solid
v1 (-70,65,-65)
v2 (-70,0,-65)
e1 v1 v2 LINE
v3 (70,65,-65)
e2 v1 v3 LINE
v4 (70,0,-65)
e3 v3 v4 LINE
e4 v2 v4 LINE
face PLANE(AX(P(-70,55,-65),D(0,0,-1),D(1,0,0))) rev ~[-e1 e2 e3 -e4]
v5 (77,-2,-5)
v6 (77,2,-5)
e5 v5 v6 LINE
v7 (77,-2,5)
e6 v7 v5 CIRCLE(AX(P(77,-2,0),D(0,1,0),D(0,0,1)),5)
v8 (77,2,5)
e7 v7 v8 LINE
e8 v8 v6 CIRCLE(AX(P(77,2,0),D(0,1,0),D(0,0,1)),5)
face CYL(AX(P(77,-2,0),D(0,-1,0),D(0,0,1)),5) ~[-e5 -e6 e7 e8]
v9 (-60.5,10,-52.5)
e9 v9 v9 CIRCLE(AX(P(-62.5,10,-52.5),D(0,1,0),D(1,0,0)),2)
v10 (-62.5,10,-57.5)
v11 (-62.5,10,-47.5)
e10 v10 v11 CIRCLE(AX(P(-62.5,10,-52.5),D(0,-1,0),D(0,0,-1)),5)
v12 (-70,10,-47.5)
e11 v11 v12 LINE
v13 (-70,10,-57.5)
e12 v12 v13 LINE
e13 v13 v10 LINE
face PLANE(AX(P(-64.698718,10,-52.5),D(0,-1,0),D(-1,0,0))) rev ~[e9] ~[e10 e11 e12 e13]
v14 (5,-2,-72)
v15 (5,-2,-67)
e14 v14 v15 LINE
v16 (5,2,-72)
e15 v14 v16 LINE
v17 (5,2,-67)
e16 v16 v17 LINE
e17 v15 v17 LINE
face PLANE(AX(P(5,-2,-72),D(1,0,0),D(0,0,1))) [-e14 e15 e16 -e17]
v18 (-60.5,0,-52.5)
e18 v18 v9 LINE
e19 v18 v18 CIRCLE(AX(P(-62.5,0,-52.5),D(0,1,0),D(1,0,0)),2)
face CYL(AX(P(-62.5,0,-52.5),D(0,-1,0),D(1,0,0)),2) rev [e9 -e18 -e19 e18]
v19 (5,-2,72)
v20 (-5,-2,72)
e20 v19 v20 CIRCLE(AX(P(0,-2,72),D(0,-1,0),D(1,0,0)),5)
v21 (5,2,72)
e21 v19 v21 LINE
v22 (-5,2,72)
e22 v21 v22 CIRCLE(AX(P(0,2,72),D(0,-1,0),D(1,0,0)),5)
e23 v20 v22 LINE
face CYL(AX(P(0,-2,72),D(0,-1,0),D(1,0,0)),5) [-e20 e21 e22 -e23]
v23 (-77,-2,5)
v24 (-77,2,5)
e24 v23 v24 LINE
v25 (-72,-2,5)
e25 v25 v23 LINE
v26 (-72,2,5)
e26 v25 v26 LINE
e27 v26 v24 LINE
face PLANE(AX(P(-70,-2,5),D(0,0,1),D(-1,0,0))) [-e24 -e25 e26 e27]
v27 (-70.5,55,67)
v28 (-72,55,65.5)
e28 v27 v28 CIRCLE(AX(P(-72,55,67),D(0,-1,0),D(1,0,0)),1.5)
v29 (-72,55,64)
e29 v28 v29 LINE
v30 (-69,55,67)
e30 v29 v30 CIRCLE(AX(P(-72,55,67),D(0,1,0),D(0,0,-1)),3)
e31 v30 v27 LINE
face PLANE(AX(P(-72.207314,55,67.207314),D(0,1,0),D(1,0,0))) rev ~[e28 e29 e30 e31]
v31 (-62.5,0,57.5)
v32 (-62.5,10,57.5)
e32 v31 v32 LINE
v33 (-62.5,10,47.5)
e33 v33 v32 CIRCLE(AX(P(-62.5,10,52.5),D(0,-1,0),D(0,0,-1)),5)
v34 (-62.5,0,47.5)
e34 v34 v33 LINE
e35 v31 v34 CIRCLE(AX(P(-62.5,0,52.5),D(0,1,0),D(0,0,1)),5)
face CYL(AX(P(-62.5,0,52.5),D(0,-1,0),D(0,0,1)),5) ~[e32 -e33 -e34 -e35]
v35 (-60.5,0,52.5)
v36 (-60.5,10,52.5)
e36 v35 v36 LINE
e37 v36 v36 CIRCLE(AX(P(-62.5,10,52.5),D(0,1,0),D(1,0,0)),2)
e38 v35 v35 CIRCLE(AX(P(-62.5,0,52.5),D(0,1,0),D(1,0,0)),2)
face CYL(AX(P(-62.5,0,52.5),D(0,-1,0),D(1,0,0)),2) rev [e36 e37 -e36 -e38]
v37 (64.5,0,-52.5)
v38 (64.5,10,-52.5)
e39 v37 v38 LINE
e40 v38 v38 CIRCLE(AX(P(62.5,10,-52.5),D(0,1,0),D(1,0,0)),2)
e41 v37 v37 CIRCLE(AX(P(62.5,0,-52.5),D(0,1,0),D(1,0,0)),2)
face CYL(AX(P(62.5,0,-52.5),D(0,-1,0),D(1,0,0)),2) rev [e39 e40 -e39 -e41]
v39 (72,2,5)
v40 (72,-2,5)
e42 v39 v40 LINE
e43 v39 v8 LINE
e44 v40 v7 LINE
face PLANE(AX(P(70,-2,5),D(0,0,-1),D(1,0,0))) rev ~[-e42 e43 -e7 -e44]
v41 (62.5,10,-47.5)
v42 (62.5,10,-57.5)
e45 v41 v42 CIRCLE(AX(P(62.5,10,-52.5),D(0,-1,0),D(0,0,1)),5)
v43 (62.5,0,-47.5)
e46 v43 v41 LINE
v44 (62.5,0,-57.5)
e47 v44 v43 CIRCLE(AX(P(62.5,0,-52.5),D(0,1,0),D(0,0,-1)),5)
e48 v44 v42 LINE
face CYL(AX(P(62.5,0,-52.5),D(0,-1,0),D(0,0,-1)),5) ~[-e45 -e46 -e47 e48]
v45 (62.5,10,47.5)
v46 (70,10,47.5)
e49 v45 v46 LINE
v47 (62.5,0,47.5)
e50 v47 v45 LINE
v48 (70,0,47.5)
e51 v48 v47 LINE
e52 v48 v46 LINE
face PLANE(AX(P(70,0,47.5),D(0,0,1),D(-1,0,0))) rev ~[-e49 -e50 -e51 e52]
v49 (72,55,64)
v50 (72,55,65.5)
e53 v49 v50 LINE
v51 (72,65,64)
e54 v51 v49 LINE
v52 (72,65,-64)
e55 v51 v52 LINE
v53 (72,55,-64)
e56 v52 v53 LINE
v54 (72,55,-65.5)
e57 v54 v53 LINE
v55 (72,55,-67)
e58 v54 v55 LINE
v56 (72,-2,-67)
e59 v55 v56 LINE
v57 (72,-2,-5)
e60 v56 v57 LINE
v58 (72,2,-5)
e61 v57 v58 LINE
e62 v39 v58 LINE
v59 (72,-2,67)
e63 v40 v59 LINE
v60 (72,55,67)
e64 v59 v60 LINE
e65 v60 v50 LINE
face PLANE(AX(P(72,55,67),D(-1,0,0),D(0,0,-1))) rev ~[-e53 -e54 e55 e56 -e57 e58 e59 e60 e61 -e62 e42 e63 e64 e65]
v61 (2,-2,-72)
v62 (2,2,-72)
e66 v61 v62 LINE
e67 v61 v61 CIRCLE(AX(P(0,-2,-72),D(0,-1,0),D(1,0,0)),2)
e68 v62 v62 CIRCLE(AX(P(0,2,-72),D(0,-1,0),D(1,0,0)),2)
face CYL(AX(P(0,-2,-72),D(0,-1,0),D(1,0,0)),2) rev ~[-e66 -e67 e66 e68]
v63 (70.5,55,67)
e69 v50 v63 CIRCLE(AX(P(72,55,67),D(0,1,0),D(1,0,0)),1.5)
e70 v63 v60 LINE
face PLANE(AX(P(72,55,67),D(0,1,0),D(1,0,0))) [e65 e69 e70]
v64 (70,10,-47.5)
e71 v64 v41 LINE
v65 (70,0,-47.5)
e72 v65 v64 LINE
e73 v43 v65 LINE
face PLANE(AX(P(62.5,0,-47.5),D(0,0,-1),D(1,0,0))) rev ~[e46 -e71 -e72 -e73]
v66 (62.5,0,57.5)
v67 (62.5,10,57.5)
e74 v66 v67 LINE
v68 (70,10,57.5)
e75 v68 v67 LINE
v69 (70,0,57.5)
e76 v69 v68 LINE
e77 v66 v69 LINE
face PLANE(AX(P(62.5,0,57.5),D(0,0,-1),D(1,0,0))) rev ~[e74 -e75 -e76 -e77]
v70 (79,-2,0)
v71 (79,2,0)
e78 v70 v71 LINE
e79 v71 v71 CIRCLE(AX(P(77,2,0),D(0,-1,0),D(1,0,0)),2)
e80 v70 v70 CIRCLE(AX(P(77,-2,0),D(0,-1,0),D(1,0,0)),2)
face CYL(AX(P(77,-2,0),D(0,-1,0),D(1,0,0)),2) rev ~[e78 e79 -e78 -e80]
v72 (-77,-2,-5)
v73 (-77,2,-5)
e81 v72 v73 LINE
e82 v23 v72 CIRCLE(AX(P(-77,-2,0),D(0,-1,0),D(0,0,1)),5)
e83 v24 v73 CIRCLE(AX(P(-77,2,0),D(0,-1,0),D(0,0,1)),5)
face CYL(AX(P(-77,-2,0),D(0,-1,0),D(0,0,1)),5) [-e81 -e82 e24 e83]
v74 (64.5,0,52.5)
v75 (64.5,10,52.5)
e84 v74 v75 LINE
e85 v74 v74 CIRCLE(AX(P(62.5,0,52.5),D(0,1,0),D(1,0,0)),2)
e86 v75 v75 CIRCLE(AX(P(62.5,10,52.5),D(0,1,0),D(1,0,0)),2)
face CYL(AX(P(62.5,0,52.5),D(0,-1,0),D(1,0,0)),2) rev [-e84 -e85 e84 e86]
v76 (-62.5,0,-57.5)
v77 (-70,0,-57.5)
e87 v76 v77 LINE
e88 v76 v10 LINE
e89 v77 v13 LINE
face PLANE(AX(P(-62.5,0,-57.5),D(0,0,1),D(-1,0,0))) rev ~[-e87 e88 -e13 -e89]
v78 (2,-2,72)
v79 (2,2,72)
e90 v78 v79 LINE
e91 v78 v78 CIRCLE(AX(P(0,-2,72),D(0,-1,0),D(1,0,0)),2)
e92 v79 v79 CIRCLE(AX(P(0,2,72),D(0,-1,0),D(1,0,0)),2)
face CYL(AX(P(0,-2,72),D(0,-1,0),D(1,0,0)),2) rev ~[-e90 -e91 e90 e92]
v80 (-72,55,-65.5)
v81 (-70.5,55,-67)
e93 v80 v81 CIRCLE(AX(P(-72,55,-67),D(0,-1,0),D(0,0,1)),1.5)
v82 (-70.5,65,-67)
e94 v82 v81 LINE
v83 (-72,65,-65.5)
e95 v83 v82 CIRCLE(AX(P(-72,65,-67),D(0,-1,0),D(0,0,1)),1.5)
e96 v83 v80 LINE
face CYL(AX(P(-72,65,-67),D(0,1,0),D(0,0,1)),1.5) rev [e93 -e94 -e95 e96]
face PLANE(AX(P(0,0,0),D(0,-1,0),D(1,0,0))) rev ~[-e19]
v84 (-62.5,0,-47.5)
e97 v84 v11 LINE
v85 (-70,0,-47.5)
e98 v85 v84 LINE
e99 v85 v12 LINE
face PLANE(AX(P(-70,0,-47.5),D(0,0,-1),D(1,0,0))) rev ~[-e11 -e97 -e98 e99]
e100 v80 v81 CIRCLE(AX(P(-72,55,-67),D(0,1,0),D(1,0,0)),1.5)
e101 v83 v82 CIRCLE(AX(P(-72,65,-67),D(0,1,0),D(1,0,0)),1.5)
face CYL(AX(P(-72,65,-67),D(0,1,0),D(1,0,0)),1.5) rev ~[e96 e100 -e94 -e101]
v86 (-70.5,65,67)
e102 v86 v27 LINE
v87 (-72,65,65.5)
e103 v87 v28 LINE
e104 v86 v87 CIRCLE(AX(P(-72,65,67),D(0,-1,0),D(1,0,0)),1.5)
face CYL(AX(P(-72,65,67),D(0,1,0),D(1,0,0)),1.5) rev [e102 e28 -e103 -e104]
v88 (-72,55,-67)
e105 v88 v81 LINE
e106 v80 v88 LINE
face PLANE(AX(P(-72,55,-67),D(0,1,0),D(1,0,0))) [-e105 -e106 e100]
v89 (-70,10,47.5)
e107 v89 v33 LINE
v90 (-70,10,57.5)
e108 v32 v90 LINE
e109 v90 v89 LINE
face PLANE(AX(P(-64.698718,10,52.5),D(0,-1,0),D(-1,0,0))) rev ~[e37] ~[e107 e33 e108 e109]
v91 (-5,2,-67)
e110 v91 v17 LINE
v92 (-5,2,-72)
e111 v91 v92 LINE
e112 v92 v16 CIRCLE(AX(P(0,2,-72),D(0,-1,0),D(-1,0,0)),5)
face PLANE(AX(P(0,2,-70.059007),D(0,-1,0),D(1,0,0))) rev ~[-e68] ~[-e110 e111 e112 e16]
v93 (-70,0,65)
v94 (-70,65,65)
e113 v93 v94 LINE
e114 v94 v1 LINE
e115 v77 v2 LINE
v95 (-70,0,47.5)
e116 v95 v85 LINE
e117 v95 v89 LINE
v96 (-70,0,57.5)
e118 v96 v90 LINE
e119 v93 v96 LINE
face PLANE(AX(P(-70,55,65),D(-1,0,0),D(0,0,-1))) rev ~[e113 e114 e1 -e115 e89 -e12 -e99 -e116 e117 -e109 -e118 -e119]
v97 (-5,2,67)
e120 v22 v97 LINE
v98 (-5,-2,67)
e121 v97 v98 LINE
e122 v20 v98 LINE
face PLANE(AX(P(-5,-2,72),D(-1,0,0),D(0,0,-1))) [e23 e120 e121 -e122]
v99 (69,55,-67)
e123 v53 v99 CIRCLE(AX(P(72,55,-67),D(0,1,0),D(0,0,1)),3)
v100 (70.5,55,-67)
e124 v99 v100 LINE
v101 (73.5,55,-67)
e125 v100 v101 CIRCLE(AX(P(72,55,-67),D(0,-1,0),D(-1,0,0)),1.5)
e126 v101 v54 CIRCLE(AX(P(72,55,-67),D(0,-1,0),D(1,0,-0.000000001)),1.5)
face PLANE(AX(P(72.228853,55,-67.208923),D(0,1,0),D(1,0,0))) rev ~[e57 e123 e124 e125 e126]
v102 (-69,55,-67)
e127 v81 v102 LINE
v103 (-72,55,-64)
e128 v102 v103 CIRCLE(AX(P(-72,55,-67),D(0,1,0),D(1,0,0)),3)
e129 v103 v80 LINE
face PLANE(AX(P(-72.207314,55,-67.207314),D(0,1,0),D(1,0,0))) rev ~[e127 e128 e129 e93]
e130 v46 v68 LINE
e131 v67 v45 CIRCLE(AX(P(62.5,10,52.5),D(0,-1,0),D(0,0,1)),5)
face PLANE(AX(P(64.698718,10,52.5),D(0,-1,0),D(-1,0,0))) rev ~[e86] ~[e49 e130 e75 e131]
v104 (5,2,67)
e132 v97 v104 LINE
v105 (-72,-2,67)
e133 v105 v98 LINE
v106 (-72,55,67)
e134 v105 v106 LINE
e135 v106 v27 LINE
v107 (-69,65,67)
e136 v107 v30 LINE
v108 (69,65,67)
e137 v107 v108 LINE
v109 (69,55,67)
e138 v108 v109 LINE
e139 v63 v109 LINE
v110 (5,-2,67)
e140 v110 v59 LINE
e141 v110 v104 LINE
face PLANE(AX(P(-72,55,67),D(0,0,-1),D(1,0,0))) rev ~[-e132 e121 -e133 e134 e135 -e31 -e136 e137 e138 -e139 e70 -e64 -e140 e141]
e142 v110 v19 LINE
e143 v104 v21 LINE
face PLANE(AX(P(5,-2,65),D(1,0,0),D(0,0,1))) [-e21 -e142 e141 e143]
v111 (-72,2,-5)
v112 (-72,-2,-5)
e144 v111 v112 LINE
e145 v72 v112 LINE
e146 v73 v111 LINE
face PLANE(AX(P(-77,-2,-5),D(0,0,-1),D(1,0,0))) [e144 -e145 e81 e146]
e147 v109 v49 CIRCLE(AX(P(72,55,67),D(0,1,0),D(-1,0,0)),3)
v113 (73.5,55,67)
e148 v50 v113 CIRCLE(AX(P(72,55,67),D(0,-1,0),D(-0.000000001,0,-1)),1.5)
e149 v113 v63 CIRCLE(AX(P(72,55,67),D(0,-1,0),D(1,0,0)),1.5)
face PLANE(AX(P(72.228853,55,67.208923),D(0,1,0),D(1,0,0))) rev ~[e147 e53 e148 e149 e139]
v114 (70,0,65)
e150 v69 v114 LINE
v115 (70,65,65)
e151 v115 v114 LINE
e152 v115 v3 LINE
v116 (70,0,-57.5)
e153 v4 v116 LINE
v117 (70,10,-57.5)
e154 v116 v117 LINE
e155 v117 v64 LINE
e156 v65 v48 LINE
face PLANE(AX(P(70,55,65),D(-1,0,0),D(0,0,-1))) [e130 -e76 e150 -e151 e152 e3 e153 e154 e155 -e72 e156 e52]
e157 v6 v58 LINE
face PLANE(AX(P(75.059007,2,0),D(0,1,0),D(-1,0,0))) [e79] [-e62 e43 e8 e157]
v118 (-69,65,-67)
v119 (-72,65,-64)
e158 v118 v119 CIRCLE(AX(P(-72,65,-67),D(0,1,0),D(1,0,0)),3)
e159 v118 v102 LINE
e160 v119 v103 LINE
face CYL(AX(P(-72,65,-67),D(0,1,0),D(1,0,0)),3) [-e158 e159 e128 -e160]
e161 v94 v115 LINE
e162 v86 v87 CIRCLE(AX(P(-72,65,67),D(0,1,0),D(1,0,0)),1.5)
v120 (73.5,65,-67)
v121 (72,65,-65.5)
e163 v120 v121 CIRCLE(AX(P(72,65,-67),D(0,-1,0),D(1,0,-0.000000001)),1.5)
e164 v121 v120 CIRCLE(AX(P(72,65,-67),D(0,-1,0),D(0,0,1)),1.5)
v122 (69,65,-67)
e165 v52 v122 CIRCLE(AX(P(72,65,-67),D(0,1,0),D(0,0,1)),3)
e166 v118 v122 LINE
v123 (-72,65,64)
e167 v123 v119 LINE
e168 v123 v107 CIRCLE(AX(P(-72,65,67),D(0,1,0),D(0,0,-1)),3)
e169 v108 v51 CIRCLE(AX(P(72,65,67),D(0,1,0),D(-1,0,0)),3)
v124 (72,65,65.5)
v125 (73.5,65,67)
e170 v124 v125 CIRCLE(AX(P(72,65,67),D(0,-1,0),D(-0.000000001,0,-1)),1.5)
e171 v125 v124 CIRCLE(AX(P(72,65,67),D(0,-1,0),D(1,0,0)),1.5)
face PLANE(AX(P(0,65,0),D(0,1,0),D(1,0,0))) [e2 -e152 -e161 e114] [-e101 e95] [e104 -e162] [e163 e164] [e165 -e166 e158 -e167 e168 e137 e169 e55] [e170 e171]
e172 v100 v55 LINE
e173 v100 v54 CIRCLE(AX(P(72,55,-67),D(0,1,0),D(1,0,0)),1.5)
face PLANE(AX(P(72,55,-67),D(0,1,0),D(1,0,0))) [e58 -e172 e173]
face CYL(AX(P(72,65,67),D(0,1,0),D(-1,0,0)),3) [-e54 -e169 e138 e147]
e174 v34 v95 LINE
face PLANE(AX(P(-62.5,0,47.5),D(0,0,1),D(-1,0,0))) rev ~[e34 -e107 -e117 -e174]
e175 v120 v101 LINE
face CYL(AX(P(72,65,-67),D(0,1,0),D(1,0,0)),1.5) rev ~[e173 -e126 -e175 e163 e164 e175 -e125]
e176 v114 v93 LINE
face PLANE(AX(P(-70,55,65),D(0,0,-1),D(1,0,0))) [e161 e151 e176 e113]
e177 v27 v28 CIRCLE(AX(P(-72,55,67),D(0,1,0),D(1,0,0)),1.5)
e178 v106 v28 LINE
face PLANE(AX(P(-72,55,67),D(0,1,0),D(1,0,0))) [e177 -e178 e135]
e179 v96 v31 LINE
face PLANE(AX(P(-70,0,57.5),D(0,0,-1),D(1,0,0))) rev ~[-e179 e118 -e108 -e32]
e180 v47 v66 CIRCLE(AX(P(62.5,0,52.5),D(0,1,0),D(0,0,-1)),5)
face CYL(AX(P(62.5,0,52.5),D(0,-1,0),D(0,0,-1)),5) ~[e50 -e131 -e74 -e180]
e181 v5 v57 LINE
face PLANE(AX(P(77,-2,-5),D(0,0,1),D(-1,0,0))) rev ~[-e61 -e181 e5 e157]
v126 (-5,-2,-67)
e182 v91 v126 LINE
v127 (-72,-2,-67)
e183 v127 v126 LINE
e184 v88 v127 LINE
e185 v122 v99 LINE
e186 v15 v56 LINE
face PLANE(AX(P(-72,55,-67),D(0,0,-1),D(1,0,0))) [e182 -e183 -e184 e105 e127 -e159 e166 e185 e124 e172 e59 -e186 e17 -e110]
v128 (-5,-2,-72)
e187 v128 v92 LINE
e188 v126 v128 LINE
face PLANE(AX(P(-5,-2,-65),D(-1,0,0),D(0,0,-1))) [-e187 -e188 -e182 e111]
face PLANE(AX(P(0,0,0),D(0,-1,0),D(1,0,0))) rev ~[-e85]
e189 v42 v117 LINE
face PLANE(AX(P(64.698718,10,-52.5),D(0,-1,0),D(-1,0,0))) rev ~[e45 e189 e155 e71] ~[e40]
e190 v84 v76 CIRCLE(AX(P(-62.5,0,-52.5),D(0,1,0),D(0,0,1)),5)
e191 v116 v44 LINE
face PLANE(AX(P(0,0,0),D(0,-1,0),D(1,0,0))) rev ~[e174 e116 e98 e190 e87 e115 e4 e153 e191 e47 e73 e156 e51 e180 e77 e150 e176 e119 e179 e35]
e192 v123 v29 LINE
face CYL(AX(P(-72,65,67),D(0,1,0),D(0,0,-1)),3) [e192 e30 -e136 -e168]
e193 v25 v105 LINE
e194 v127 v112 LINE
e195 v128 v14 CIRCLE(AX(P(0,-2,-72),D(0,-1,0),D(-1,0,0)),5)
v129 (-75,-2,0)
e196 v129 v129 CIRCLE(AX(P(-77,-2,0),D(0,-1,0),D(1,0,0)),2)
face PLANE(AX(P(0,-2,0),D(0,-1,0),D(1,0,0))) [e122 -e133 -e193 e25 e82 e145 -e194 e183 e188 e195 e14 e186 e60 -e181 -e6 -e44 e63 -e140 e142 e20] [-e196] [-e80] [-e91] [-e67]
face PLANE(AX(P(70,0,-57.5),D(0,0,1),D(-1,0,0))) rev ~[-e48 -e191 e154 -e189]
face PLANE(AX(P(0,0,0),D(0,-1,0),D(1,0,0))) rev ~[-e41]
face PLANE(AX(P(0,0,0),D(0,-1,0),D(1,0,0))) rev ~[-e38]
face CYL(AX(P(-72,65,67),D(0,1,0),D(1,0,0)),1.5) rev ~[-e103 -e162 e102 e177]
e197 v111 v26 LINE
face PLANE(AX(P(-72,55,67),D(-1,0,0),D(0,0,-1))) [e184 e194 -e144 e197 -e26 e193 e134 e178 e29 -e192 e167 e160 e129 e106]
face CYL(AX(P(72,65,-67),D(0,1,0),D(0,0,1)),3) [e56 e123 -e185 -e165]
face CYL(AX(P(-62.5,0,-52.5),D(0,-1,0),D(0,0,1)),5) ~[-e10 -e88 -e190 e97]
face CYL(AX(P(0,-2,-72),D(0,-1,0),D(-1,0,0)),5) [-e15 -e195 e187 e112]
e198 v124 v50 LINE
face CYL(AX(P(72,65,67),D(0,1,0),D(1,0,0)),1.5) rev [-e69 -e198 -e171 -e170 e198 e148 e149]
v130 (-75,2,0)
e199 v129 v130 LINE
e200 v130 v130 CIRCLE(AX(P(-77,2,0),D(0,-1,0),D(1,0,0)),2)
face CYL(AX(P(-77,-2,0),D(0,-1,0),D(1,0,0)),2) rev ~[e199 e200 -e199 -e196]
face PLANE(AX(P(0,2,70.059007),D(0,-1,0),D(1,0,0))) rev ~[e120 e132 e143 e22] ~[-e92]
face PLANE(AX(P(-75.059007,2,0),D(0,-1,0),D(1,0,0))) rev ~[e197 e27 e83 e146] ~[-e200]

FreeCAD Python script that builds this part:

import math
import FreeCAD as App
import Part
import Sketcher
Q = App.Units.Quantity

doc = App.newDocument("Part")
params = doc.addObject("Spreadsheet::Sheet", "Params")
for row, (alias, value) in enumerate([
    ("sketch1_diameter", "4 mm"),
    ("sketch1_radius", "5 mm"),
    ("sketch1_width", "144 mm"),
    ("sketch1_width2", "140 mm"),
    ("sketch1_height", "134 mm"),
    ("pad1_length", "55 mm"),
    ("sketch2_diameter", "4 mm"),
    ("sketch2_radius", "5 mm"),
    ("sketch2_width", "7.5 mm"),
    ("pocket1_length", "45 mm"),
    ("sketch3_width", "144 mm"),
    ("sketch3_height", "134 mm"),
    ("pad2_length", "2 mm"),
    ("sketch4_diameter", "4 mm"),
    ("sketch4_radius", "5 mm"),
    ("sketch4_width", "7 mm"),
    ("pad3_length", "4 mm"),
    ("sketch5_width", "144 mm"),
    ("sketch5_width2", "140 mm"),
    ("sketch5_height", "134 mm"),
    ("sketch5_height2", "130 mm"),
    ("pad4_length", "10 mm"),
    ("sketch6_radius", "3 mm"),
    ("sketch6_radius2", "1.5 mm"),
    ("pad5_length", "10 mm"),
    ("sketch7_diameter", "3 mm"),
    ("pocket2_length", "10 mm"),
], start=1):
    params.set(f"A{row}", alias)
    params.set(f"B{row}", "=" + value)
    params.setAlias(f"B{row}", alias)

body = doc.addObject("PartDesign::Body", "Body")

# Sketch on XZ plane
sketch1 = body.newObject("Sketcher::SketchObject", "Sketch")
sketch1.AttachmentSupport = (doc.getObject("XZ_Plane"), [""])
sketch1.MapMode = "FlatFace"
sketch1.addGeometry([
    Part.LineSegment(App.Vector(-72, -67, 0), App.Vector(-72, 67, 0)),  # 0
    Part.LineSegment(App.Vector(-72, 67, 0), App.Vector(72, 67, 0)),  # 1
    Part.LineSegment(App.Vector(72, 67, 0), App.Vector(72, -67, 0)),  # 2
    Part.LineSegment(App.Vector(72, -67, 0), App.Vector(-72, -67, 0)),  # 3
    Part.Circle(App.Vector(-62.5, 52.5, 0), App.Vector(0, 0, 1), 2),  # 4
    Part.Circle(App.Vector(62.5, 52.5, 0), App.Vector(0, 0, 1), 2),  # 5
    Part.Circle(App.Vector(-62.5, -52.5, 0), App.Vector(0, 0, 1), 2),  # 6
    Part.LineSegment(App.Vector(-70, -57.5, 0), App.Vector(-70, -65, 0)),  # 7
    Part.LineSegment(App.Vector(-70, -65, 0), App.Vector(70, -65, 0)),  # 8
    Part.LineSegment(App.Vector(70, -65, 0), App.Vector(70, -57.5, 0)),  # 9
    Part.LineSegment(App.Vector(70, -57.5, 0), App.Vector(62.5, -57.5, 0)),  # 10
    Part.ArcOfCircle(Part.Circle(App.Vector(62.5, -52.5, 0), App.Vector(0, 0, 1), 5), math.radians(90), math.radians(270)),  # 11
    Part.LineSegment(App.Vector(62.5, -47.5, 0), App.Vector(70, -47.5, 0)),  # 12
    Part.LineSegment(App.Vector(70, -47.5, 0), App.Vector(70, 47.5, 0)),  # 13
    Part.LineSegment(App.Vector(70, 47.5, 0), App.Vector(62.5, 47.5, 0)),  # 14
    Part.ArcOfCircle(Part.Circle(App.Vector(62.5, 52.5, 0), App.Vector(0, 0, 1), 5), math.radians(90), math.radians(270)),  # 15
    Part.LineSegment(App.Vector(62.5, 57.5, 0), App.Vector(70, 57.5, 0)),  # 16
    Part.LineSegment(App.Vector(70, 57.5, 0), App.Vector(70, 65, 0)),  # 17
    Part.LineSegment(App.Vector(70, 65, 0), App.Vector(-70, 65, 0)),  # 18
    Part.LineSegment(App.Vector(-70, 65, 0), App.Vector(-70, 57.5, 0)),  # 19
    Part.LineSegment(App.Vector(-70, 57.5, 0), App.Vector(-62.5, 57.5, 0)),  # 20
    Part.ArcOfCircle(Part.Circle(App.Vector(-62.5, 52.5, 0), App.Vector(0, 0, 1), 5), math.radians(-90), math.radians(90)),  # 21
    Part.LineSegment(App.Vector(-62.5, 47.5, 0), App.Vector(-70, 47.5, 0)),  # 22
    Part.LineSegment(App.Vector(-70, 47.5, 0), App.Vector(-70, -47.5, 0)),  # 23
    Part.LineSegment(App.Vector(-70, -47.5, 0), App.Vector(-62.5, -47.5, 0)),  # 24
    Part.ArcOfCircle(Part.Circle(App.Vector(-62.5, -52.5, 0), App.Vector(0, 0, 1), 5), math.radians(-90), math.radians(90)),  # 25
    Part.LineSegment(App.Vector(-62.5, -57.5, 0), App.Vector(-70, -57.5, 0)),  # 26
    Part.Circle(App.Vector(62.5, -52.5, 0), App.Vector(0, 0, 1), 2),  # 27
], False)
sketch1.addConstraint([
    Sketcher.Constraint("Coincident", 0, 2, 1, 1),
    Sketcher.Constraint("Coincident", 1, 2, 2, 1),
    Sketcher.Constraint("Coincident", 2, 2, 3, 1),
    Sketcher.Constraint("Coincident", 3, 2, 0, 1),
    Sketcher.Constraint("Coincident", 7, 2, 8, 1),
    Sketcher.Constraint("Coincident", 8, 2, 9, 1),
    Sketcher.Constraint("Coincident", 9, 2, 10, 1),
    Sketcher.Constraint("Tangent", 10, 2, 11, 2),
    Sketcher.Constraint("Tangent", 11, 1, 12, 1),
    Sketcher.Constraint("Coincident", 12, 2, 13, 1),
    Sketcher.Constraint("Coincident", 13, 2, 14, 1),
    Sketcher.Constraint("Tangent", 14, 2, 15, 2),
    Sketcher.Constraint("Tangent", 15, 1, 16, 1),
    Sketcher.Constraint("Coincident", 16, 2, 17, 1),
    Sketcher.Constraint("Coincident", 17, 2, 18, 1),
    Sketcher.Constraint("Coincident", 18, 2, 19, 1),
    Sketcher.Constraint("Coincident", 19, 2, 20, 1),
    Sketcher.Constraint("Tangent", 20, 2, 21, 2),
    Sketcher.Constraint("Tangent", 21, 1, 22, 1),
    Sketcher.Constraint("Coincident", 22, 2, 23, 1),
    Sketcher.Constraint("Coincident", 23, 2, 24, 1),
    Sketcher.Constraint("Tangent", 24, 2, 25, 2),
    Sketcher.Constraint("Tangent", 25, 1, 26, 1),
    Sketcher.Constraint("Coincident", 26, 2, 7, 1),
    Sketcher.Constraint("Vertical", 0),
    Sketcher.Constraint("Horizontal", 1),
    Sketcher.Constraint("Vertical", 2),
    Sketcher.Constraint("Horizontal", 3),
    Sketcher.Constraint("Vertical", 7),
    Sketcher.Constraint("Horizontal", 8),
    Sketcher.Constraint("Vertical", 9),
    Sketcher.Constraint("Horizontal", 10),
    Sketcher.Constraint("Horizontal", 12),
    Sketcher.Constraint("Vertical", 13),
    Sketcher.Constraint("Horizontal", 14),
    Sketcher.Constraint("Horizontal", 16),
    Sketcher.Constraint("Vertical", 17),
    Sketcher.Constraint("Horizontal", 18),
    Sketcher.Constraint("Vertical", 19),
    Sketcher.Constraint("Horizontal", 20),
    Sketcher.Constraint("Horizontal", 22),
    Sketcher.Constraint("Vertical", 23),
    Sketcher.Constraint("Horizontal", 24),
    Sketcher.Constraint("Horizontal", 26),
    Sketcher.Constraint("Coincident", 15, 3, 5, 3),
    Sketcher.Constraint("Coincident", 21, 3, 4, 3),
    Sketcher.Constraint("Coincident", 25, 3, 6, 3),
    Sketcher.Constraint("Coincident", 27, 3, 11, 3),
    Sketcher.Constraint("Equal", 4, 5),
    Sketcher.Constraint("Equal", 5, 6),
    Sketcher.Constraint("Equal", 11, 15),
    Sketcher.Constraint("Equal", 15, 21),
    Sketcher.Constraint("Equal", 21, 25),
    Sketcher.Constraint("Equal", 6, 27),
    Sketcher.Constraint("Symmetric", 5, 3, 6, 3, -1, 1),
    Sketcher.Constraint("Symmetric", 4, 3, 11, 3, -1, 1),
    Sketcher.Constraint("Symmetric", 0, 2, 2, 2, -1, 1),
    Sketcher.Constraint("Symmetric", 7, 2, 17, 2, -1, 1),
    Sketcher.Constraint("Symmetric", 4, 3, 5, 3, -2),
    Sketcher.Constraint("Vertical", 9, 2, 12, 2),
    Sketcher.Constraint("Vertical", 13, 2, 16, 2),
    Sketcher.Constraint("Vertical", 7, 2, 18, 2),
    Sketcher.Constraint("Vertical", 19, 2, 22, 2),
    Sketcher.Constraint("Equal", 26, 7),
    Sketcher.Constraint("Diameter", 4, Q("4 mm")),
    Sketcher.Constraint("Radius", 11, Q("5 mm")),
    Sketcher.Constraint("DistanceX", 1, 1, 1, 2, Q("144 mm")),
    Sketcher.Constraint("DistanceX", 8, 1, 8, 2, Q("140 mm")),
    Sketcher.Constraint("DistanceY", 0, 1, 0, 2, Q("134 mm")),
    Sketcher.Constraint("DistanceY", 13, 1, 13, 2, Q("95 mm")),
    Sketcher.Constraint("DistanceX", 10, 2, 10, 1, Q("7.5 mm")),
])
sketch1.setExpression("Constraints[64]", "Params.sketch1_diameter")
sketch1.setExpression("Constraints[65]", "Params.sketch1_radius")
sketch1.setExpression("Constraints[66]", "Params.sketch1_width")
sketch1.setExpression("Constraints[67]", "Params.sketch1_width2")
sketch1.setExpression("Constraints[68]", "Params.sketch1_height")
pad1 = body.newObject("PartDesign::Pad", "Pad")
pad1.Profile = sketch1
pad1.setExpression("Length", "Params.pad1_length")
pad1.Reversed = True

# Sketch on XZ plane
sketch2 = body.newObject("Sketcher::SketchObject", "Sketch001")
sketch2.AttachmentSupport = (doc.getObject("XZ_Plane"), [""])
sketch2.MapMode = "FlatFace"
sketch2.AttachmentOffset = App.Placement(App.Vector(0, 0, -55), App.Rotation())
sketch2.addGeometry([
    Part.LineSegment(App.Vector(-62.5, 47.5, 0), App.Vector(-70, 47.5, 0)),  # 0
    Part.LineSegment(App.Vector(-70, 47.5, 0), App.Vector(-70, 57.5, 0)),  # 1
    Part.LineSegment(App.Vector(-70, 57.5, 0), App.Vector(-62.5, 57.5, 0)),  # 2
    Part.ArcOfCircle(Part.Circle(App.Vector(-62.5, 52.5, 0), App.Vector(0, 0, 1), 5), math.radians(-90), math.radians(90)),  # 3
    Part.Circle(App.Vector(-62.5, 52.5, 0), App.Vector(0, 0, 1), 2),  # 4
    Part.LineSegment(App.Vector(62.5, 57.5, 0), App.Vector(70, 57.5, 0)),  # 5
    Part.LineSegment(App.Vector(70, 57.5, 0), App.Vector(70, 47.5, 0)),  # 6
    Part.LineSegment(App.Vector(70, 47.5, 0), App.Vector(62.5, 47.5, 0)),  # 7
    Part.ArcOfCircle(Part.Circle(App.Vector(62.5, 52.5, 0), App.Vector(0, 0, 1), 5), math.radians(90), math.radians(270)),  # 8
    Part.Circle(App.Vector(62.5, 52.5, 0), App.Vector(0, 0, 1), 2),  # 9
    Part.LineSegment(App.Vector(62.5, -47.5, 0), App.Vector(70, -47.5, 0)),  # 10
    Part.LineSegment(App.Vector(70, -47.5, 0), App.Vector(70, -57.5, 0)),  # 11
    Part.LineSegment(App.Vector(70, -57.5, 0), App.Vector(62.5, -57.5, 0)),  # 12
    Part.ArcOfCircle(Part.Circle(App.Vector(62.5, -52.5, 0), App.Vector(0, 0, 1), 5), math.radians(90), math.radians(270)),  # 13
    Part.Circle(App.Vector(62.5, -52.5, 0), App.Vector(0, 0, 1), 2),  # 14
    Part.LineSegment(App.Vector(-70, -47.5, 0), App.Vector(-62.5, -47.5, 0)),  # 15
    Part.ArcOfCircle(Part.Circle(App.Vector(-62.5, -52.5, 0), App.Vector(0, 0, 1), 5), math.radians(-90), math.radians(90)),  # 16
    Part.LineSegment(App.Vector(-62.5, -57.5, 0), App.Vector(-70, -57.5, 0)),  # 17
    Part.LineSegment(App.Vector(-70, -57.5, 0), App.Vector(-70, -47.5, 0)),  # 18
    Part.Circle(App.Vector(-62.5, -52.5, 0), App.Vector(0, 0, 1), 2),  # 19
], False)
sketch2.addConstraint([
    Sketcher.Constraint("Coincident", 0, 2, 1, 1),
    Sketcher.Constraint("Coincident", 1, 2, 2, 1),
    Sketcher.Constraint("Tangent", 2, 2, 3, 2),
    Sketcher.Constraint("Tangent", 3, 1, 0, 1),
    Sketcher.Constraint("Coincident", 5, 2, 6, 1),
    Sketcher.Constraint("Coincident", 6, 2, 7, 1),
    Sketcher.Constraint("Tangent", 7, 2, 8, 2),
    Sketcher.Constraint("Tangent", 8, 1, 5, 1),
    Sketcher.Constraint("Coincident", 10, 2, 11, 1),
    Sketcher.Constraint("Coincident", 11, 2, 12, 1),
    Sketcher.Constraint("Tangent", 12, 2, 13, 2),
    Sketcher.Constraint("Tangent", 13, 1, 10, 1),
    Sketcher.Constraint("Tangent", 15, 2, 16, 2),
    Sketcher.Constraint("Tangent", 16, 1, 17, 1),
    Sketcher.Constraint("Coincident", 17, 2, 18, 1),
    Sketcher.Constraint("Coincident", 18, 2, 15, 1),
    Sketcher.Constraint("Horizontal", 0),
    Sketcher.Constraint("Vertical", 1),
    Sketcher.Constraint("Horizontal", 2),
    Sketcher.Constraint("Horizontal", 5),
    Sketcher.Constraint("Vertical", 6),
    Sketcher.Constraint("Horizontal", 7),
    Sketcher.Constraint("Horizontal", 10),
    Sketcher.Constraint("Vertical", 11),
    Sketcher.Constraint("Horizontal", 12),
    Sketcher.Constraint("Horizontal", 15),
    Sketcher.Constraint("Horizontal", 17),
    Sketcher.Constraint("Vertical", 18),
    Sketcher.Constraint("Coincident", 4, 3, 3, 3),
    Sketcher.Constraint("Coincident", 9, 3, 8, 3),
    Sketcher.Constraint("Coincident", 14, 3, 13, 3),
    Sketcher.Constraint("Coincident", 19, 3, 16, 3),
    Sketcher.Constraint("Equal", 3, 8),
    Sketcher.Constraint("Equal", 4, 9),
    Sketcher.Constraint("Equal", 8, 13),
    Sketcher.Constraint("Equal", 9, 14),
    Sketcher.Constraint("Equal", 13, 16),
    Sketcher.Constraint("Equal", 14, 19),
    Sketcher.Constraint("Symmetric", 3, 3, 13, 3, -1, 1),
    Sketcher.Constraint("Symmetric", 8, 3, 16, 3, -1, 1),
    Sketcher.Constraint("Symmetric", 3, 3, 8, 3, -2),
    Sketcher.Constraint("Vertical", 6, 2, 10, 2),
    Sketcher.Constraint("Vertical", 1, 2, 17, 2),
    Sketcher.Constraint("Equal", 2, 5),
    Sketcher.Constraint("Diameter", 4, Q("4 mm")),
    Sketcher.Constraint("Radius", 3, Q("5 mm")),
    Sketcher.Constraint("DistanceX", 0, 2, 0, 1, Q("7.5 mm")),
    Sketcher.Constraint("DistanceX", 0, 2, -1, 1, Q("70 mm")),
    Sketcher.Constraint("DistanceY", 13, 3, 8, 3, Q("105 mm")),
])
sketch2.setExpression("Constraints[44]", "Params.sketch2_diameter")
sketch2.setExpression("Constraints[45]", "Params.sketch2_radius")
sketch2.setExpression("Constraints[46]", "Params.sketch2_width")
pocket1 = body.newObject("PartDesign::Pocket", "Pocket")
pocket1.Profile = sketch2
pocket1.setExpression("Length", "Params.pocket1_length")
pocket1.Reversed = True

# Sketch on XZ plane
sketch3 = body.newObject("Sketcher::SketchObject", "Sketch002")
sketch3.AttachmentSupport = (doc.getObject("XZ_Plane"), [""])
sketch3.MapMode = "FlatFace"
sketch3.addGeometry([
    Part.LineSegment(App.Vector(-72, 67, 0), App.Vector(-72, -67, 0)),
    Part.LineSegment(App.Vector(-72, -67, 0), App.Vector(72, -67, 0)),
    Part.LineSegment(App.Vector(72, -67, 0), App.Vector(72, 67, 0)),
    Part.LineSegment(App.Vector(72, 67, 0), App.Vector(-72, 67, 0)),
], False)
sketch3.addConstraint([
    Sketcher.Constraint("Coincident", 0, 2, 1, 1),
    Sketcher.Constraint("Coincident", 1, 2, 2, 1),
    Sketcher.Constraint("Coincident", 2, 2, 3, 1),
    Sketcher.Constraint("Coincident", 3, 2, 0, 1),
    Sketcher.Constraint("Vertical", 0),
    Sketcher.Constraint("Horizontal", 1),
    Sketcher.Constraint("Vertical", 2),
    Sketcher.Constraint("Horizontal", 3),
    Sketcher.Constraint("Symmetric", 0, 2, 2, 2, -1, 1),
    Sketcher.Constraint("DistanceX", 1, 1, 1, 2, Q("144 mm")),
    Sketcher.Constraint("DistanceY", 0, 2, 0, 1, Q("134 mm")),
])
sketch3.setExpression("Constraints[9]", "Params.sketch3_width")
sketch3.setExpression("Constraints[10]", "Params.sketch3_height")
pad2 = body.newObject("PartDesign::Pad", "Pad001")
pad2.Profile = sketch3
pad2.setExpression("Length", "Params.pad2_length")

# Sketch on XZ plane
sketch4 = body.newObject("Sketcher::SketchObject", "Sketch003")
sketch4.AttachmentSupport = (doc.getObject("XZ_Plane"), [""])
sketch4.MapMode = "FlatFace"
sketch4.AttachmentOffset = App.Placement(App.Vector(0, 0, 2), App.Rotation())
sketch4.addGeometry([
    Part.LineSegment(App.Vector(-70, -5, 0), App.Vector(-70, 5, 0)),  # 0
    Part.LineSegment(App.Vector(-70, 5, 0), App.Vector(-77, 5, 0)),  # 1
    Part.ArcOfCircle(Part.Circle(App.Vector(-77, 0, 0), App.Vector(0, 0, 1), 5), math.radians(90), math.radians(270)),  # 2
    Part.LineSegment(App.Vector(-77, -5, 0), App.Vector(-70, -5, 0)),  # 3
    Part.Circle(App.Vector(-77, 0, 0), App.Vector(0, 0, 1), 2),  # 4
    Part.LineSegment(App.Vector(5, -72, 0), App.Vector(5, -65, 0)),  # 5
    Part.LineSegment(App.Vector(5, -65, 0), App.Vector(-5, -65, 0)),  # 6
    Part.LineSegment(App.Vector(-5, -65, 0), App.Vector(-5, -72, 0)),  # 7
    Part.ArcOfCircle(Part.Circle(App.Vector(0, -72, 0), App.Vector(0, 0, 1), 5), math.radians(180), math.radians(360)),  # 8
    Part.Circle(App.Vector(0, -72, 0), App.Vector(0, 0, 1), 2),  # 9
    Part.LineSegment(App.Vector(70, 5, 0), App.Vector(70, -5, 0)),  # 10
    Part.LineSegment(App.Vector(70, -5, 0), App.Vector(77, -5, 0)),  # 11
    Part.ArcOfCircle(Part.Circle(App.Vector(77, 0, 0), App.Vector(0, 0, 1), 5), math.radians(-90), math.radians(90)),  # 12
    Part.LineSegment(App.Vector(77, 5, 0), App.Vector(70, 5, 0)),  # 13
    Part.Circle(App.Vector(77, 0, 0), App.Vector(0, 0, 1), 2),  # 14
    Part.LineSegment(App.Vector(-5, 65, 0), App.Vector(5, 65, 0)),  # 15
    Part.LineSegment(App.Vector(5, 65, 0), App.Vector(5, 72, 0)),  # 16
    Part.ArcOfCircle(Part.Circle(App.Vector(0, 72, 0), App.Vector(0, 0, 1), 5), math.radians(0), math.radians(180)),  # 17
    Part.LineSegment(App.Vector(-5, 72, 0), App.Vector(-5, 65, 0)),  # 18
    Part.Circle(App.Vector(0, 72, 0), App.Vector(0, 0, 1), 2),  # 19
], False)
sketch4.addConstraint([
    Sketcher.Constraint("Coincident", 0, 2, 1, 1),
    Sketcher.Constraint("Tangent", 1, 2, 2, 1),
    Sketcher.Constraint("Tangent", 2, 2, 3, 1),
    Sketcher.Constraint("Coincident", 3, 2, 0, 1),
    Sketcher.Constraint("Coincident", 5, 2, 6, 1),
    Sketcher.Constraint("Coincident", 6, 2, 7, 1),
    Sketcher.Constraint("Tangent", 7, 2, 8, 1),
    Sketcher.Constraint("Tangent", 8, 2, 5, 1),
    Sketcher.Constraint("Coincident", 10, 2, 11, 1),
    Sketcher.Constraint("Tangent", 11, 2, 12, 1),
    Sketcher.Constraint("Tangent", 12, 2, 13, 1),
    Sketcher.Constraint("Coincident", 13, 2, 10, 1),
    Sketcher.Constraint("Coincident", 15, 2, 16, 1),
    Sketcher.Constraint("Tangent", 16, 2, 17, 1),
    Sketcher.Constraint("Tangent", 17, 2, 18, 1),
    Sketcher.Constraint("Coincident", 18, 2, 15, 1),
    Sketcher.Constraint("Vertical", 0),
    Sketcher.Constraint("Horizontal", 1),
    Sketcher.Constraint("Horizontal", 3),
    Sketcher.Constraint("Vertical", 5),
    Sketcher.Constraint("Horizontal", 6),
    Sketcher.Constraint("Vertical", 7),
    Sketcher.Constraint("Vertical", 10),
    Sketcher.Constraint("Horizontal", 11),
    Sketcher.Constraint("Horizontal", 13),
    Sketcher.Constraint("Horizontal", 15),
    Sketcher.Constraint("Vertical", 16),
    Sketcher.Constraint("Vertical", 18),
    Sketcher.Constraint("Coincident", 4, 3, 2, 3),
    Sketcher.Constraint("Coincident", 9, 3, 8, 3),
    Sketcher.Constraint("Coincident", 14, 3, 12, 3),
    Sketcher.Constraint("Coincident", 19, 3, 17, 3),
    Sketcher.Constraint("Equal", 2, 8),
    Sketcher.Constraint("Equal", 4, 9),
    Sketcher.Constraint("Equal", 8, 12),
    Sketcher.Constraint("Equal", 9, 14),
    Sketcher.Constraint("Equal", 12, 17),
    Sketcher.Constraint("Equal", 14, 19),
    Sketcher.Constraint("Symmetric", 2, 3, 12, 3, -1, 1),
    Sketcher.Constraint("Symmetric", 8, 3, 17, 3, -1, 1),
    Sketcher.Constraint("Symmetric", 3, 2, 10, 2, -2),
    Sketcher.Constraint("Symmetric", 5, 2, 15, 2, -1),
    Sketcher.Constraint("Equal", 13, 5),
    Sketcher.Constraint("Diameter", 4, Q("4 mm")),
    Sketcher.Constraint("Radius", 2, Q("5 mm")),
    Sketcher.Constraint("DistanceX", 1, 2, 1, 1, Q("7 mm")),
    Sketcher.Constraint("DistanceX", 2, 3, -1, 1, Q("77 mm")),
    Sketcher.Constraint("DistanceY", 8, 3, -1, 1, Q("72 mm")),
])
sketch4.setExpression("Constraints[43]", "Params.sketch4_diameter")
sketch4.setExpression("Constraints[44]", "Params.sketch4_radius")
sketch4.setExpression("Constraints[45]", "Params.sketch4_width")
pad3 = body.newObject("PartDesign::Pad", "Pad002")
pad3.Profile = sketch4
pad3.setExpression("Length", "Params.pad3_length")
pad3.Reversed = True

# Sketch on XZ plane
sketch5 = body.newObject("Sketcher::SketchObject", "Sketch004")
sketch5.AttachmentSupport = (doc.getObject("XZ_Plane"), [""])
sketch5.MapMode = "FlatFace"
sketch5.AttachmentOffset = App.Placement(App.Vector(0, 0, -55), App.Rotation())
sketch5.addGeometry([
    Part.LineSegment(App.Vector(-72, -67, 0), App.Vector(-72, 67, 0)),  # 0
    Part.LineSegment(App.Vector(-72, 67, 0), App.Vector(72, 67, 0)),  # 1
    Part.LineSegment(App.Vector(72, 67, 0), App.Vector(72, -67, 0)),  # 2
    Part.LineSegment(App.Vector(72, -67, 0), App.Vector(-72, -67, 0)),  # 3
    Part.LineSegment(App.Vector(70, 65, 0), App.Vector(-70, 65, 0)),  # 4
    Part.LineSegment(App.Vector(-70, 65, 0), App.Vector(-70, -65, 0)),  # 5
    Part.LineSegment(App.Vector(-70, -65, 0), App.Vector(70, -65, 0)),  # 6
    Part.LineSegment(App.Vector(70, -65, 0), App.Vector(70, 65, 0)),  # 7
], False)
sketch5.addConstraint([
    Sketcher.Constraint("Coincident", 0, 2, 1, 1),
    Sketcher.Constraint("Coincident", 1, 2, 2, 1),
    Sketcher.Constraint("Coincident", 2, 2, 3, 1),
    Sketcher.Constraint("Coincident", 3, 2, 0, 1),
    Sketcher.Constraint("Coincident", 4, 2, 5, 1),
    Sketcher.Constraint("Coincident", 5, 2, 6, 1),
    Sketcher.Constraint("Coincident", 6, 2, 7, 1),
    Sketcher.Constraint("Coincident", 7, 2, 4, 1),
    Sketcher.Constraint("Vertical", 0),
    Sketcher.Constraint("Horizontal", 1),
    Sketcher.Constraint("Vertical", 2),
    Sketcher.Constraint("Horizontal", 3),
    Sketcher.Constraint("Horizontal", 4),
    Sketcher.Constraint("Vertical", 5),
    Sketcher.Constraint("Horizontal", 6),
    Sketcher.Constraint("Vertical", 7),
    Sketcher.Constraint("Symmetric", 0, 2, 2, 2, -1, 1),
    Sketcher.Constraint("Symmetric", 4, 2, 6, 2, -1, 1),
    Sketcher.Constraint("DistanceX", 1, 1, 1, 2, Q("144 mm")),
    Sketcher.Constraint("DistanceX", 4, 2, 4, 1, Q("140 mm")),
    Sketcher.Constraint("DistanceY", 0, 1, 0, 2, Q("134 mm")),
    Sketcher.Constraint("DistanceY", 5, 2, 5, 1, Q("130 mm")),
])
sketch5.setExpression("Constraints[18]", "Params.sketch5_width")
sketch5.setExpression("Constraints[19]", "Params.sketch5_width2")
sketch5.setExpression("Constraints[20]", "Params.sketch5_height")
sketch5.setExpression("Constraints[21]", "Params.sketch5_height2")
pad4 = body.newObject("PartDesign::Pad", "Pad003")
pad4.Profile = sketch5
pad4.setExpression("Length", "Params.pad4_length")
pad4.Reversed = True

# Sketch on XZ plane
sketch6 = body.newObject("Sketcher::SketchObject", "Sketch005")
sketch6.AttachmentSupport = (doc.getObject("XZ_Plane"), [""])
sketch6.MapMode = "FlatFace"
sketch6.AttachmentOffset = App.Placement(App.Vector(0, 0, -65), App.Rotation())
sketch6.addGeometry([
    Part.ArcOfCircle(Part.Circle(App.Vector(-72, -67, 0), App.Vector(0, 0, 1), 3), math.radians(90), math.radians(360)),  # 0
    Part.LineSegment(App.Vector(-72, -64, 0), App.Vector(-72, -65.5, 0)),  # 1
    Part.ArcOfCircle(Part.Circle(App.Vector(-72, -67, 0), App.Vector(0, 0, 1), 1.5), math.radians(90), math.radians(360)),  # 2
    Part.LineSegment(App.Vector(-70.5, -67, 0), App.Vector(-69, -67, 0)),  # 3
    Part.LineSegment(App.Vector(72, -65.5, 0), App.Vector(72, -64, 0)),  # 4
    Part.ArcOfCircle(Part.Circle(App.Vector(72, -67, 0), App.Vector(0, 0, 1), 3), math.radians(180), math.radians(450)),  # 5
    Part.LineSegment(App.Vector(69, -67, 0), App.Vector(70.5, -67, 0)),  # 6
    Part.ArcOfCircle(Part.Circle(App.Vector(72, -67, 0), App.Vector(0, 0, 1), 1.5), math.radians(180), math.radians(360)),  # 7
    Part.ArcOfCircle(Part.Circle(App.Vector(72, -67, 0), App.Vector(0, 0, 1), 1.5), math.radians(0), math.radians(90)),  # 8
    Part.LineSegment(App.Vector(70.5, 67, 0), App.Vector(69, 67, 0)),  # 9
    Part.ArcOfCircle(Part.Circle(App.Vector(72, 67, 0), App.Vector(0, 0, 1), 3), math.radians(-90), math.radians(180)),  # 10
    Part.LineSegment(App.Vector(72, 64, 0), App.Vector(72, 65.5, 0)),  # 11
    Part.ArcOfCircle(Part.Circle(App.Vector(72, 67, 0), App.Vector(0, 0, 1), 1.5), math.radians(-90), math.radians(0)),  # 12
    Part.ArcOfCircle(Part.Circle(App.Vector(72, 67, 0), App.Vector(0, 0, 1), 1.5), math.radians(0), math.radians(180)),  # 13
    Part.LineSegment(App.Vector(-69, 67, 0), App.Vector(-70.5, 67, 0)),  # 14
    Part.ArcOfCircle(Part.Circle(App.Vector(-72, 67, 0), App.Vector(0, 0, 1), 1.5), math.radians(0), math.radians(270)),  # 15
    Part.LineSegment(App.Vector(-72, 65.5, 0), App.Vector(-72, 64, 0)),  # 16
    Part.ArcOfCircle(Part.Circle(App.Vector(-72, 67, 0), App.Vector(0, 0, 1), 3), math.radians(0), math.radians(270)),  # 17
], False)
sketch6.addConstraint([
    Sketcher.Constraint("Coincident", 0, 1, 1, 1),
    Sketcher.Constraint("Coincident", 1, 2, 2, 1),
    Sketcher.Constraint("Coincident", 2, 2, 3, 1),
    Sketcher.Constraint("Coincident", 3, 2, 0, 2),
    Sketcher.Constraint("Coincident", 4, 2, 5, 2),
    Sketcher.Constraint("Coincident", 5, 1, 6, 1),
    Sketcher.Constraint("Coincident", 6, 2, 7, 1),
    Sketcher.Constraint("Tangent", 7, 2, 8, 1),
    Sketcher.Constraint("Coincident", 8, 2, 4, 1),
    Sketcher.Constraint("Coincident", 9, 2, 10, 2),
    Sketcher.Constraint("Coincident", 10, 1, 11, 1),
    Sketcher.Constraint("Coincident", 11, 2, 12, 1),
    Sketcher.Constraint("Tangent", 12, 2, 13, 1),
    Sketcher.Constraint("Coincident", 13, 2, 9, 1),
    Sketcher.Constraint("Coincident", 14, 2, 15, 1),
    Sketcher.Constraint("Coincident", 15, 2, 16, 1),
    Sketcher.Constraint("Coincident", 16, 2, 17, 2),
    Sketcher.Constraint("Coincident", 17, 1, 14, 1),
    Sketcher.Constraint("Vertical", 1),
    Sketcher.Constraint("Horizontal", 3),
    Sketcher.Constraint("Vertical", 4),
    Sketcher.Constraint("Horizontal", 6),
    Sketcher.Constraint("Horizontal", 9),
    Sketcher.Constraint("Vertical", 11),
    Sketcher.Constraint("Horizontal", 14),
    Sketcher.Constraint("Vertical", 16),
    Sketcher.Constraint("Coincident", 2, 3, 0, 3),
    Sketcher.Constraint("Coincident", 7, 3, 5, 3),
    Sketcher.Constraint("Coincident", 12, 3, 10, 3),
    Sketcher.Constraint("Coincident", 17, 3, 15, 3),
    Sketcher.Constraint("Equal", 0, 5),
    Sketcher.Constraint("Equal", 2, 7),
    Sketcher.Constraint("Equal", 7, 8),
    Sketcher.Constraint("Equal", 5, 10),
    Sketcher.Constraint("Equal", 8, 12),
    Sketcher.Constraint("Equal", 12, 13),
    Sketcher.Constraint("Equal", 13, 15),
    Sketcher.Constraint("Equal", 10, 17),
    Sketcher.Constraint("Symmetric", 0, 3, 10, 3, -1, 1),
    Sketcher.Constraint("Symmetric", 5, 3, 15, 3, -1, 1),
    Sketcher.Constraint("Symmetric", 0, 3, 5, 3, -2),
    Sketcher.Constraint("Horizontal", 8, 3, 2, 2),
    Sketcher.Constraint("Horizontal", 3, 2, 5, 1),
    Sketcher.Constraint("Horizontal", 6, 2, 7, 2),
    Sketcher.Constraint("Horizontal", 17, 3, 9, 2),
    Sketcher.Constraint("Horizontal", 9, 2, 12, 2),
    Sketcher.Constraint("Horizontal", 13, 2, 14, 2),
    Sketcher.Constraint("Vertical", 17, 3, 0, 1),
    Sketcher.Constraint("Vertical", 13, 3, 4, 2),
    Sketcher.Constraint("Vertical", 8, 2, 10, 1),
    Sketcher.Constraint("Vertical", 1, 2, 15, 2),
    Sketcher.Constraint("Radius", 0, Q("3 mm")),
    Sketcher.Constraint("Radius", 2, Q("1.5 mm")),
    Sketcher.Constraint("DistanceX", 0, 3, -1, 1, Q("72 mm")),
    Sketcher.Constraint("DistanceY", 0, 3, -1, 1, Q("67 mm")),
])
sketch6.setExpression("Constraints[51]", "Params.sketch6_radius")
sketch6.setExpression("Constraints[52]", "Params.sketch6_radius2")
pad5 = body.newObject("PartDesign::Pad", "Pad004")
pad5.Profile = sketch6
pad5.setExpression("Length", "Params.pad5_length")

# Sketch on XZ plane
sketch7 = body.newObject("Sketcher::SketchObject", "Sketch006")
sketch7.AttachmentSupport = (doc.getObject("XZ_Plane"), [""])
sketch7.MapMode = "FlatFace"
sketch7.AttachmentOffset = App.Placement(App.Vector(0, 0, -65), App.Rotation())
sketch7.addGeometry([
    Part.Circle(App.Vector(-72, -67, 0), App.Vector(0, 0, 1), 1.5),
    Part.Circle(App.Vector(72, -67, 0), App.Vector(0, 0, 1), 1.5),
    Part.Circle(App.Vector(72, 67, 0), App.Vector(0, 0, 1), 1.5),
    Part.Circle(App.Vector(-72, 67, 0), App.Vector(0, 0, 1), 1.5),
], False)
sketch7.addConstraint([
    Sketcher.Constraint("Equal", 0, 1),
    Sketcher.Constraint("Equal", 1, 2),
    Sketcher.Constraint("Equal", 2, 3),
    Sketcher.Constraint("Symmetric", 0, 3, 2, 3, -1, 1),
    Sketcher.Constraint("Symmetric", 1, 3, 3, 3, -1, 1),
    Sketcher.Constraint("Symmetric", 0, 3, 1, 3, -2),
    Sketcher.Constraint("Diameter", 0, Q("3 mm")),
    Sketcher.Constraint("DistanceX", 0, 3, -1, 1, Q("72 mm")),
    Sketcher.Constraint("DistanceY", 0, 3, -1, 1, Q("67 mm")),
])
sketch7.setExpression("Constraints[6]", "Params.sketch7_diameter")
pocket2 = body.newObject("PartDesign::Pocket", "Pocket001")
pocket2.Profile = sketch7
pocket2.setExpression("Length", "Params.pocket2_length")
pocket2.Reversed = True

doc.recompute()
